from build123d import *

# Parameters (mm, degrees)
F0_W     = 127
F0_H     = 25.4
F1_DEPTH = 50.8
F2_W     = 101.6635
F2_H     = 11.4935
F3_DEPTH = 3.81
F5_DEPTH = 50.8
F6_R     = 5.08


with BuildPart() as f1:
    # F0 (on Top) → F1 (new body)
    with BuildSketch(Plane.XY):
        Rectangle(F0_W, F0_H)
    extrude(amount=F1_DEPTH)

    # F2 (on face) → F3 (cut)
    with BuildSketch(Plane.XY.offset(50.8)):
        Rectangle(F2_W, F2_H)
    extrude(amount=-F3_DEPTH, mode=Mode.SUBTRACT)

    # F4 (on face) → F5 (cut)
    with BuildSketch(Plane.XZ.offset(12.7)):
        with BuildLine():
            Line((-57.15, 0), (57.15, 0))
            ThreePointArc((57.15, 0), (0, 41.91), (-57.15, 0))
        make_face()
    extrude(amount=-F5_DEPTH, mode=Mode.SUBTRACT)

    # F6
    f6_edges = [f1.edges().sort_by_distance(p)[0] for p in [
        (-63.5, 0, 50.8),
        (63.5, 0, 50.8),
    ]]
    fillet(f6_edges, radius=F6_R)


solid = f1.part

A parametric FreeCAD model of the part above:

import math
import FreeCAD as App
import Part
import Sketcher

V = App.Vector
Q = App.Units.Quantity


def edges_at(feature, points):
    """Names of the edges that pass closest to the given points."""
    edges = feature.Shape.Edges
    near = lambda p: min(range(len(edges)), key=lambda i: edges[i].distToShape(Part.Vertex(*p))[0])
    return sorted({f"Edge{near(p) + 1}" for p in points})


def add_polygon(sketch, points):
    """Adds a closed chain of lines whose ends are joined by coincident constraints."""
    first, n = sketch.GeometryCount, len(points)
    for a, b in zip(points, points[1:] + points[:1]):
        sketch.addGeometry(Part.LineSegment(App.Vector(*a, 0), App.Vector(*b, 0)), False)
    for i in range(n):
        sketch.addConstraint(Sketcher.Constraint("Coincident", first + i, 2, first + (i + 1) % n, 1))

doc = App.newDocument("Part")
params = doc.addObject("Spreadsheet::Sheet", "Params")
for row, (alias, value) in enumerate([
    ("sketch1_width", "5 in"),
    ("sketch1_height", "1 in"),
    ("pad1_length", "2 in"),
    ("pocket1_length", "0.15 in"),
    ("sketch3_width", "4.5 in"),
    ("pocket2_length", "2 in"),
    ("fillet_radius", "0.2 in"),
], start=1):
    params.set(f"A{row}", alias)
    params.set(f"B{row}", "=" + value)
    params.setAlias(f"B{row}", alias)

body = doc.addObject("PartDesign::Body", "Body")

# Sketch on XY plane
sketch1 = body.newObject("Sketcher::SketchObject", "Sketch")
sketch1.AttachmentSupport = (doc.getObject("XY_Plane"), [""])
sketch1.MapMode = "FlatFace"
add_polygon(sketch1, [(-63.5, 12.7), (-63.5, -12.7), (63.5, -12.7), (63.5, 12.7)])  # lines 0-3
sketch1.addConstraint([
    Sketcher.Constraint("Vertical", 0),
    Sketcher.Constraint("Horizontal", 1),
    Sketcher.Constraint("Vertical", 2),
    Sketcher.Constraint("Horizontal", 3),
    Sketcher.Constraint("Symmetric", 0, 2, 2, 2, -1, 1),
    Sketcher.Constraint("DistanceX", 1, 1, 1, 2, Q("5 in")),
    Sketcher.Constraint("DistanceY", 0, 2, 0, 1, Q("1 in")),
])
sketch1.setExpression("Constraints[9]", "Params.sketch1_width")
sketch1.setExpression("Constraints[10]", "Params.sketch1_height")
pad1 = body.newObject("PartDesign::Pad", "Pad")
pad1.Profile = sketch1
pad1.setExpression("Length", "Params.pad1_length")

# Sketch on XY plane
sketch2 = body.newObject("Sketcher::SketchObject", "Sketch001")
sketch2.AttachmentSupport = (doc.getObject("XY_Plane"), [""])
sketch2.MapMode = "FlatFace"
sketch2.AttachmentOffset = App.Placement(V(0, 0, 2 * 25.4), App.Rotation())
add_polygon(sketch2, [(-50.83175, 5.74675), (-50.83175, -5.74675), (50.83175, -5.74675), (50.83175, 5.74675)])  # lines 0-3
sketch2.addConstraint([
    Sketcher.Constraint("Vertical", 0),
    Sketcher.Constraint("Horizontal", 1),
    Sketcher.Constraint("Vertical", 2),
    Sketcher.Constraint("Horizontal", 3),
    Sketcher.Constraint("Symmetric", 0, 2, 2, 2, -1, 1),
    Sketcher.Constraint("DistanceX", 1, 1, 1, 2, Q("4.0025 in")),
    Sketcher.Constraint("DistanceY", 0, 2, 0, 1, Q("0.4525 in")),
])
pocket1 = body.newObject("PartDesign::Pocket", "Pocket")
pocket1.Profile = sketch2
pocket1.setExpression("Length", "Params.pocket1_length")

# Sketch on XZ plane
sketch3 = body.newObject("Sketcher::SketchObject", "Sketch002")
sketch3.AttachmentSupport = (doc.getObject("XZ_Plane"), [""])
sketch3.MapMode = "FlatFace"
sketch3.AttachmentOffset = App.Placement(V(0, 0, 0.5 * 25.4), App.Rotation())
sketch3.addGeometry([
    Part.LineSegment(V(-57.15, 0, 0), V(57.15, 0, 0)),
    Part.ArcOfCircle(Part.Circle(V(0, -18.010909, 0), V(0, 0, 1), 59.920909), math.radians(17.492325), math.radians(162.507675)),
], False)
sketch3.addConstraint([
    Sketcher.Constraint("Coincident", 0, 1, 1, 2),
    Sketcher.Constraint("Coincident", 1, 1, 0, 2),
    Sketcher.Constraint("Horizontal", 0),
    Sketcher.Constraint("Symmetric", 0, 1, 1, 1, -1, 1),
    Sketcher.Constraint("DistanceX", 0, 1, 0, 2, Q("4.5 in")),
    Sketcher.Constraint("Radius", 1, 59.920909),
])
sketch3.setExpression("Constraints[4]", "Params.sketch3_width")
pocket2 = body.newObject("PartDesign::Pocket", "Pocket001")
pocket2.Profile = sketch3
pocket2.setExpression("Length", "Params.pocket2_length")
doc.recompute()

fillet = body.newObject("PartDesign::Fillet", "Fillet")
fillet.Base = (pocket2, edges_at(pocket2, [(-63.5, 0, 50.8), (63.5, 0, 50.8)]))
fillet.setExpression("Radius", "Params.fillet_radius")

doc.recompute()
